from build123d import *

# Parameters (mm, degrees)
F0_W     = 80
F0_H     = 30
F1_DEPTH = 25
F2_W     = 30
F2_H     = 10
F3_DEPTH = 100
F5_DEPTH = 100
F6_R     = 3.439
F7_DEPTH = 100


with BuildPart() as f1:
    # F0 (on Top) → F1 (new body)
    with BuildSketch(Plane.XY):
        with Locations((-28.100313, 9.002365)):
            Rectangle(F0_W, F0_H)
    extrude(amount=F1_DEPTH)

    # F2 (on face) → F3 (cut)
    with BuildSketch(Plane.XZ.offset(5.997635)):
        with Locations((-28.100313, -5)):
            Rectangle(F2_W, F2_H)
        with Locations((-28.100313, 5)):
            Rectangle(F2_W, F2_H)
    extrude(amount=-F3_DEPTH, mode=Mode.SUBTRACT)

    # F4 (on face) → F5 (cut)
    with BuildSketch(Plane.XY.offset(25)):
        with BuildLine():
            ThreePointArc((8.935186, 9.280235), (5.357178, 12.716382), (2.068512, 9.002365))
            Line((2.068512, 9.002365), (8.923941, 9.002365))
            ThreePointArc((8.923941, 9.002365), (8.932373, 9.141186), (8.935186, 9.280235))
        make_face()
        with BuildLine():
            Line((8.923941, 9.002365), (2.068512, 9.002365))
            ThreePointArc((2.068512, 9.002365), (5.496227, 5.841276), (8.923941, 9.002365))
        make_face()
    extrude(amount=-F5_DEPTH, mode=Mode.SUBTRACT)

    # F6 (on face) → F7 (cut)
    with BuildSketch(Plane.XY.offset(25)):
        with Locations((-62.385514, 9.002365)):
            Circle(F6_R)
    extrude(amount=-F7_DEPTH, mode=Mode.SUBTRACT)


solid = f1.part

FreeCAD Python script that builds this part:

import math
import FreeCAD as App
import Part
import Sketcher
from FreeCAD import Vector


def add_polygon(sketch, points):
    """Adds a closed chain of lines whose ends are joined by coincident constraints."""
    first, n = sketch.GeometryCount, len(points)
    for a, b in zip(points, points[1:] + points[:1]):
        sketch.addGeometry(Part.LineSegment(App.Vector(*a, 0), App.Vector(*b, 0)), False)
    for i in range(n):
        sketch.addConstraint(Sketcher.Constraint("Coincident", first + i, 2, first + (i + 1) % n, 1))

doc = App.newDocument("Part")
body = doc.addObject("PartDesign::Body", "Body")

sketch1 = body.newObject("Sketcher::SketchObject", "Sketch")
sketch1.AttachmentSupport = (doc.getObject("XY_Plane"), [""])
sketch1.MapMode = "FlatFace"
add_polygon(sketch1, [(-68, 24), (-68, -6), (12, -6), (12, 24)])
sketch1.addConstraint(Sketcher.Constraint("Vertical", 0))
sketch1.addConstraint(Sketcher.Constraint("Horizontal", 1))
sketch1.addConstraint(Sketcher.Constraint("Vertical", 2))
sketch1.addConstraint(Sketcher.Constraint("Horizontal", 3))
sketch1.addConstraint(Sketcher.Constraint("DistanceX", 1, 1, 1, 2, 80.0))
sketch1.addConstraint(Sketcher.Constraint("DistanceY", 0, 2, 0, 1, 30.0))
sketch1.addConstraint(Sketcher.Constraint("DistanceX", 0, 2, -1, 1, 68.100313))
sketch1.addConstraint(Sketcher.Constraint("DistanceY", 0, 2, -1, 1, 5.997635))
pad1 = body.newObject("PartDesign::Pad", "Pad")
pad1.Profile = sketch1
pad1.Length = 25

sketch2 = body.newObject("Sketcher::SketchObject", "Sketch001")
sketch2.AttachmentSupport = (doc.getObject("XZ_Plane"), [""])
sketch2.MapMode = "FlatFace"
sketch2.AttachmentOffset = App.Placement(Vector(0, 0, 5.997635), App.Rotation())
add_polygon(sketch2, [(-43, -10), (-13, -10), (-13, 10), (-43, 10)])
sketch2.addConstraint(Sketcher.Constraint("Horizontal", 0))
sketch2.addConstraint(Sketcher.Constraint("Vertical", 1))
sketch2.addConstraint(Sketcher.Constraint("Horizontal", 2))
sketch2.addConstraint(Sketcher.Constraint("Vertical", 3))
sketch2.addConstraint(Sketcher.Constraint("DistanceX", 0, 1, 0, 2, 30.0))
sketch2.addConstraint(Sketcher.Constraint("DistanceY", 1, 1, 1, 2, 20.0))
sketch2.addConstraint(Sketcher.Constraint("DistanceY", 0, 2, -1, 1, 10.0))
sketch2.addConstraint(Sketcher.Constraint("DistanceX", 0, 2, -1, 1, 13.100313))
pocket1 = body.newObject("PartDesign::Pocket", "Pocket")
pocket1.Profile = sketch2
pocket1.Length = 100

sketch3 = body.newObject("Sketcher::SketchObject", "Sketch002")
sketch3.AttachmentSupport = (doc.getObject("XY_Plane"), [""])
sketch3.MapMode = "FlatFace"
sketch3.AttachmentOffset = App.Placement(Vector(0, 0, 25), App.Rotation())
sketch3.addGeometry(Part.ArcOfCircle(Part.Circle(Vector(5.5, 9.28, 0), Vector(0, 0, 1), 3.44), math.radians(0), math.radians(185)), False)
sketch3.addGeometry(Part.ArcOfCircle(Part.Circle(Vector(5.5, 9.28, 0), Vector(0, 0, 1), 3.44), math.radians(-175), math.radians(-5)), False)
sketch3.addGeometry(Part.ArcOfCircle(Part.Circle(Vector(5.5, 9.28, 0), Vector(0, 0, 1), 3.44), math.radians(-4.63), math.radians(0)), False)
sketch3.addConstraint(Sketcher.Constraint("Tangent", 0, 2, 1, 1))
sketch3.addConstraint(Sketcher.Constraint("Coincident", 1, 2, 2, 1))
sketch3.addConstraint(Sketcher.Constraint("Coincident", 2, 2, 0, 1))
sketch3.addConstraint(Sketcher.Constraint("Equal", 0, 1))
sketch3.addConstraint(Sketcher.Constraint("Horizontal", 0, 2, 1, 2))
sketch3.addConstraint(Sketcher.Constraint("Horizontal", 1, 3, 2, 2))
sketch3.addConstraint(Sketcher.Constraint("Radius", 2, 3.4395))
sketch3.addConstraint(Sketcher.Constraint("Radius", 0, 3.438959))
sketch3.addConstraint(Sketcher.Constraint("DistanceY", 0, 2, 2, 3, 0.277899))
sketch3.addConstraint(Sketcher.Constraint("DistanceX", -1, 1, 0, 2, 2.068512))
sketch3.addConstraint(Sketcher.Constraint("DistanceY", -1, 1, 0, 3, 9.280235))
pocket2 = body.newObject("PartDesign::Pocket", "Pocket001")
pocket2.Profile = sketch3
pocket2.Length = 100

sketch4 = body.newObject("Sketcher::SketchObject", "Sketch003")
sketch4.AttachmentSupport = (doc.getObject("XY_Plane"), [""])
sketch4.MapMode = "FlatFace"
sketch4.AttachmentOffset = App.Placement(Vector(0, 0, 25), App.Rotation())
sketch4.addGeometry(Part.Circle(Vector(-62.4, 9, 0), Vector(0, 0, 1), 3.4), False)
sketch4.addConstraint(Sketcher.Constraint("Diameter", 0, 6.878))
sketch4.addConstraint(Sketcher.Constraint("DistanceX", 0, 3, -1, 1, 62.385514))
sketch4.addConstraint(Sketcher.Constraint("DistanceY", -1, 1, 0, 3, 9.002365))
pocket3 = body.newObject("PartDesign::Pocket", "Pocket002")
pocket3.Profile = sketch4
pocket3.Length = 100

doc.recompute()
